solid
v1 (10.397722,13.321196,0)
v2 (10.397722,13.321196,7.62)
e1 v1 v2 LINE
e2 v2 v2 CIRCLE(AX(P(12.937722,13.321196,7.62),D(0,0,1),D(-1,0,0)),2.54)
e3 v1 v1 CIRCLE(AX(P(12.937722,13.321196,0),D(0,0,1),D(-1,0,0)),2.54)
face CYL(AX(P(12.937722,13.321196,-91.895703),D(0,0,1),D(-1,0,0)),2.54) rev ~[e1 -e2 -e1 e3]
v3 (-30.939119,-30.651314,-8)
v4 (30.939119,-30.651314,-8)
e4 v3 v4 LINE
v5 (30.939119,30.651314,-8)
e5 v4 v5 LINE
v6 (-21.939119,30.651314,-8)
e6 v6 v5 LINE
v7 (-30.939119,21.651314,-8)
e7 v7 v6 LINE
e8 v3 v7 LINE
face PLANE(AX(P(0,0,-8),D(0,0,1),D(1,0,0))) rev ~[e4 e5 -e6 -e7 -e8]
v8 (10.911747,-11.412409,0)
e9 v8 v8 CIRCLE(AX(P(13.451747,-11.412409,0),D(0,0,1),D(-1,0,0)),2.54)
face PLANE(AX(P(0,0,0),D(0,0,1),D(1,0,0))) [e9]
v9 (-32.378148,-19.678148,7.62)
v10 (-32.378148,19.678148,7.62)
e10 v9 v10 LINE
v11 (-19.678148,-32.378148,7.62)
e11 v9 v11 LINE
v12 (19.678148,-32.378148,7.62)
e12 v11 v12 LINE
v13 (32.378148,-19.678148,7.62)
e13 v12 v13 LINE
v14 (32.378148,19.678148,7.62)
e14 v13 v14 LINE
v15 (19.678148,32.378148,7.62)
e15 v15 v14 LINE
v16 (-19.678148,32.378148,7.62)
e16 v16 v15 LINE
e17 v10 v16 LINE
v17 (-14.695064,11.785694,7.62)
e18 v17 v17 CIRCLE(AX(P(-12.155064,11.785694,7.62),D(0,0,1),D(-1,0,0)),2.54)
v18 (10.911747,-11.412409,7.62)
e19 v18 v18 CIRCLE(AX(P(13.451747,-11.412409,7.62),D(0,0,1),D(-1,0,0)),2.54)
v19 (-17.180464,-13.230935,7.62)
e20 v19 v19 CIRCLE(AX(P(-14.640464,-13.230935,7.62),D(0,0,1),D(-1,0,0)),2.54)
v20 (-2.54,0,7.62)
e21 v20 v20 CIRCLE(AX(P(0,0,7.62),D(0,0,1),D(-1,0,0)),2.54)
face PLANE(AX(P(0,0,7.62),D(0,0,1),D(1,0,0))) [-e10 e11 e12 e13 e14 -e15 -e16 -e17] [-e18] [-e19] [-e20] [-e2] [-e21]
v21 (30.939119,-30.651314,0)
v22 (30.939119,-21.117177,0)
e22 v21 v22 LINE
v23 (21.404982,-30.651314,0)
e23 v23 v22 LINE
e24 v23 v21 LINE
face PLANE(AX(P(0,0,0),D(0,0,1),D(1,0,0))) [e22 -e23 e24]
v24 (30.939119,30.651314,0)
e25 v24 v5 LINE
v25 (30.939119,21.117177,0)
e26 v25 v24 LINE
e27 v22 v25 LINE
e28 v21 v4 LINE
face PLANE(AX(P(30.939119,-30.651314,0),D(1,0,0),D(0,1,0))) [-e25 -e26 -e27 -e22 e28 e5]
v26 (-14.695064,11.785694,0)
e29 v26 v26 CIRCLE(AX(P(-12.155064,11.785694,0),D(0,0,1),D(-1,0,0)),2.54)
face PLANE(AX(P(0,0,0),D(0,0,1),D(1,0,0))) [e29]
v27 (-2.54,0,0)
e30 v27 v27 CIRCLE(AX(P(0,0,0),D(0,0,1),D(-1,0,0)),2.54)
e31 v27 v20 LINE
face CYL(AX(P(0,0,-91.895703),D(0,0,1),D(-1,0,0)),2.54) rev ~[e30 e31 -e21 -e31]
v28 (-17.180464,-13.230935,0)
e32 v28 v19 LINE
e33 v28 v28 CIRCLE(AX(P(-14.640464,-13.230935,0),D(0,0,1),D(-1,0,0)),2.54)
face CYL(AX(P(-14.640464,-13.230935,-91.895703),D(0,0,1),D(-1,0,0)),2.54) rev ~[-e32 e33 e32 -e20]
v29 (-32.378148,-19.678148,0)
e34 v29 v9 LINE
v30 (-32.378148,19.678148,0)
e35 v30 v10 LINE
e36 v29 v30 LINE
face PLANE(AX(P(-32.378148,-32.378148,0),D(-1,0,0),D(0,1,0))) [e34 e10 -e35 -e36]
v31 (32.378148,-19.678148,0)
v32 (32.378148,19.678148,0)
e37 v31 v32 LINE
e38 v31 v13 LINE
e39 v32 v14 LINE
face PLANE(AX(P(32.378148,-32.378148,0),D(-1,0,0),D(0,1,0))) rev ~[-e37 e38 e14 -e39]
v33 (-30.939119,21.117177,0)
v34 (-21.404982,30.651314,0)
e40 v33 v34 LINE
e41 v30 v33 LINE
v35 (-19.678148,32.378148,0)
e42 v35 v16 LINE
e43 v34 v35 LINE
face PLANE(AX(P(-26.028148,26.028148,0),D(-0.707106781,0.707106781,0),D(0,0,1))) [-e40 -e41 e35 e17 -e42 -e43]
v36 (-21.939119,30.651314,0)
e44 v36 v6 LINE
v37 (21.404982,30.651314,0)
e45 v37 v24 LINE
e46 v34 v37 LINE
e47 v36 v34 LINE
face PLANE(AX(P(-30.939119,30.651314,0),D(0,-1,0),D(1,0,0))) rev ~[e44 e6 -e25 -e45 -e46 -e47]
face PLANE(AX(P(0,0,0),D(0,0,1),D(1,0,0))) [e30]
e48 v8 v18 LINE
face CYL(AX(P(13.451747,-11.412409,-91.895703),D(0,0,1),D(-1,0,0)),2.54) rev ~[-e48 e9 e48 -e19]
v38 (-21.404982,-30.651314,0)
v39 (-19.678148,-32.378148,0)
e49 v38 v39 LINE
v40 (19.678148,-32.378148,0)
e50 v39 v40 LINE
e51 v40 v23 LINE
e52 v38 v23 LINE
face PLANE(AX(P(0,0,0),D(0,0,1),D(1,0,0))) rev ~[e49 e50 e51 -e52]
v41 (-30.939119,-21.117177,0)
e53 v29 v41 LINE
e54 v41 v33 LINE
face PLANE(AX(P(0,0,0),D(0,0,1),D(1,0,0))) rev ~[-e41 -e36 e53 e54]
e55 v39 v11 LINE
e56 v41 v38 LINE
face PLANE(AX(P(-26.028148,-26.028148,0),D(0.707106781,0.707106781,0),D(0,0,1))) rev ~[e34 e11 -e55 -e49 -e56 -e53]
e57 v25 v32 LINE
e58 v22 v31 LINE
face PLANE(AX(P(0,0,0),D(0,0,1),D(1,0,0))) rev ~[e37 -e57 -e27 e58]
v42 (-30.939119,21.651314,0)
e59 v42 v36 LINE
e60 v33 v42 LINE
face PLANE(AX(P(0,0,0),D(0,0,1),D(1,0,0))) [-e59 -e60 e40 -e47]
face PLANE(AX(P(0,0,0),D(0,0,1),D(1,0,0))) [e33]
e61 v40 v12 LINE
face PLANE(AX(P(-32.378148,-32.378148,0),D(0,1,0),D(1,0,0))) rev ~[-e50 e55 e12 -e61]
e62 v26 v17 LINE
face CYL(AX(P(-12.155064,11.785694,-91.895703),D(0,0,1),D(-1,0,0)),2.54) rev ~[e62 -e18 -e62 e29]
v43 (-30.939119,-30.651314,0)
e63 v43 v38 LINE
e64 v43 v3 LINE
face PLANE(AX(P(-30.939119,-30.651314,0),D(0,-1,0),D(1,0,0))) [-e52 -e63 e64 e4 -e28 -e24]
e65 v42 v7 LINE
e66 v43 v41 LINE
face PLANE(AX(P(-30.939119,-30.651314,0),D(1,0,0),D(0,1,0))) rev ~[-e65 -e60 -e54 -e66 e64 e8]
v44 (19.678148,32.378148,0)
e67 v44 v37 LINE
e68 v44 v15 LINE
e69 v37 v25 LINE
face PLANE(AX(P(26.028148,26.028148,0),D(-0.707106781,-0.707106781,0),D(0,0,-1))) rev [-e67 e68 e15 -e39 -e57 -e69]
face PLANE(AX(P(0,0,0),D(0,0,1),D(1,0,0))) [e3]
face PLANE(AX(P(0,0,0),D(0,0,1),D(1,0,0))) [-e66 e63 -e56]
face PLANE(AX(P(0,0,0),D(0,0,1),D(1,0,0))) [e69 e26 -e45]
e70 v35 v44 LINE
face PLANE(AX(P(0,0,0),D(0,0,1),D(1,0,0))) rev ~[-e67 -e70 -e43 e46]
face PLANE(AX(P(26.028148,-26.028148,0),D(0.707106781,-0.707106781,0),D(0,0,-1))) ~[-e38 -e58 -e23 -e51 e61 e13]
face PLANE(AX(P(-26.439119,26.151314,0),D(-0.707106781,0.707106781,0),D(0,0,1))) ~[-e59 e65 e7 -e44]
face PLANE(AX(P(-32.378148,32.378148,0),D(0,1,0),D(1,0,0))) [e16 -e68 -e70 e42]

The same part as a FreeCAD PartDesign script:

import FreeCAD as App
import Part
import Sketcher
Q = App.Units.Quantity


def edges_at(feature, points):
    """Names of the edges that pass closest to the given points."""
    edges = feature.Shape.Edges
    near = lambda p: min(range(len(edges)), key=lambda i: edges[i].distToShape(Part.Vertex(*p))[0])
    return sorted({f"Edge{near(p) + 1}" for p in points})


def add_polygon(sketch, points):
    """Adds a closed chain of lines whose ends are joined by coincident constraints."""
    first, n = sketch.GeometryCount, len(points)
    for a, b in zip(points, points[1:] + points[:1]):
        sketch.addGeometry(Part.LineSegment(App.Vector(*a, 0), App.Vector(*b, 0)), False)
    for i in range(n):
        sketch.addConstraint(Sketcher.Constraint("Coincident", first + i, 2, first + (i + 1) % n, 1))

doc = App.newDocument("Part")
body = doc.addObject("PartDesign::Body", "Body")

# Sketch on XY plane
sketch1 = doc.addObject("Sketcher::SketchObject", "Sketch")
body.addObject(sketch1)
sketch1.AttachmentSupport = (doc.XY_Plane, [""])
sketch1.MapMode = "FlatFace"
add_polygon(sketch1, [(-32, 32), (-32, -32), (32, -32), (32, 32)])  # lines 0-3
sketch1.addConstraint([
    Sketcher.Constraint("Vertical", 0),
    Sketcher.Constraint("Horizontal", 1),
    Sketcher.Constraint("Vertical", 2),
    Sketcher.Constraint("Horizontal", 3),
    Sketcher.Constraint("Symmetric", 0, 2, 2, 2, -1, 1),
    Sketcher.Constraint("Equal", 3, 0),
    Sketcher.Constraint("DistanceX", 1, 1, 1, 2, Q("64.756296 mm")),
])
pad1 = doc.addObject("PartDesign::Pad", "Pad")
body.addObject(pad1)
pad1.Profile = sketch1
pad1.Length = Q("0.3 in")
doc.recompute()

chamfer = doc.addObject("PartDesign::Chamfer", "Chamfer")
body.addObject(chamfer)
chamfer.Base = (pad1, edges_at(pad1, [(32.378, -32.378, 3.81)]))
chamfer.Size = Q("0.5 in")
doc.recompute()

chamfer2 = doc.addObject("PartDesign::Chamfer", "Chamfer001")
body.addObject(chamfer2)
chamfer2.Base = (chamfer, edges_at(chamfer, [(-32.378, 32.378, 3.81)]))
chamfer2.Size = Q("0.5 in")
doc.recompute()

chamfer3 = doc.addObject("PartDesign::Chamfer", "Chamfer002")
body.addObject(chamfer3)
chamfer3.Base = (chamfer2, edges_at(chamfer2, [(-32.378, -32.378, 3.81)]))
chamfer3.Size = Q("0.5 in")
doc.recompute()

chamfer4 = doc.addObject("PartDesign::Chamfer", "Chamfer003")
body.addObject(chamfer4)
chamfer4.Base = (chamfer3, edges_at(chamfer3, [(32.378, 32.378, 3.81)]))
chamfer4.Size = Q("0.5 in")

# Sketch on XY plane
sketch2 = doc.addObject("Sketcher::SketchObject", "Sketch001")
body.addObject(sketch2)
sketch2.AttachmentSupport = (doc.XY_Plane, [""])
sketch2.MapMode = "FlatFace"
sketch2.addGeometry(Part.Circle(App.Vector(13.5, -11.4, 0), App.Vector(0, 0, 1), 2.5), False)
sketch2.addConstraint([
    Sketcher.Constraint("Diameter", 0, Q("0.2 in")),
    Sketcher.Constraint("DistanceY", 0, 3, -1, 1, Q("11.412409 mm")),
    Sketcher.Constraint("DistanceX", -1, 1, 0, 3, Q("13.451747 mm")),
])
doc.recompute()
hole = doc.addObject("PartDesign::Hole", "Hole")
body.addObject(hole)
hole.Profile = sketch2
hole.ThreadType = "None"
hole.Diameter = Q("0.2 in")
hole.DepthType = "ThroughAll"
hole.Reversed = True

# Sketch on XY plane
sketch3 = doc.addObject("Sketcher::SketchObject", "Sketch002")
body.addObject(sketch3)
sketch3.AttachmentSupport = (doc.XY_Plane, [""])
sketch3.MapMode = "FlatFace"
sketch3.addGeometry(Part.Circle(App.Vector(12.9, 13.3, 0), App.Vector(0, 0, 1), 2.5), False)
sketch3.addConstraint([
    Sketcher.Constraint("Diameter", 0, Q("0.2 in")),
    Sketcher.Constraint("DistanceX", -1, 1, 0, 3, Q("12.937722 mm")),
    Sketcher.Constraint("DistanceY", -1, 1, 0, 3, Q("13.321196 mm")),
])
doc.recompute()
hole2 = doc.addObject("PartDesign::Hole", "Hole001")
body.addObject(hole2)
hole2.Profile = sketch3
hole2.ThreadType = "None"
hole2.Diameter = Q("0.2 in")
hole2.DepthType = "ThroughAll"
hole2.Reversed = True

# Sketch on XY plane
sketch4 = doc.addObject("Sketcher::SketchObject", "Sketch003")
body.addObject(sketch4)
sketch4.AttachmentSupport = (doc.XY_Plane, [""])
sketch4.MapMode = "FlatFace"
sketch4.addGeometry(Part.Circle(App.Vector(0, 0, 0), App.Vector(0, 0, 1), 2.5), False)
sketch4.addConstraint([
    Sketcher.Constraint("Coincident", 0, 3, -1, 1),
    Sketcher.Constraint("Diameter", 0, Q("0.2 in")),
])
doc.recompute()
hole3 = doc.addObject("PartDesign::Hole", "Hole002")
body.addObject(hole3)
hole3.Profile = sketch4
hole3.ThreadType = "None"
hole3.Diameter = Q("0.2 in")
hole3.DepthType = "ThroughAll"
hole3.Reversed = True

# Sketch on XY plane
sketch5 = doc.addObject("Sketcher::SketchObject", "Sketch004")
body.addObject(sketch5)
sketch5.AttachmentSupport = (doc.XY_Plane, [""])
sketch5.MapMode = "FlatFace"
sketch5.addGeometry([
    Part.Circle(App.Vector(-12.2, 11.8, 0), App.Vector(0, 0, 1), 2.5),
    Part.Circle(App.Vector(-14.6, -13.2, 0), App.Vector(0, 0, 1), 2.5),
], False)
sketch5.addConstraint([
    Sketcher.Constraint("Equal", 0, 1),
    Sketcher.Constraint("Diameter", 0, Q("0.2 in")),
    Sketcher.Constraint("DistanceX", 1, 3, 0, 3, Q("2.4854 mm")),
    Sketcher.Constraint("DistanceY", 1, 3, 0, 3, Q("25.016629 mm")),
    Sketcher.Constraint("DistanceX", 0, 3, -1, 1, Q("12.155064 mm")),
    Sketcher.Constraint("DistanceY", -1, 1, 0, 3, Q("11.785694 mm")),
])
doc.recompute()
hole4 = doc.addObject("PartDesign::Hole", "Hole003")
body.addObject(hole4)
hole4.Profile = sketch5
hole4.ThreadType = "None"
hole4.Diameter = Q("0.2 in")
hole4.DepthType = "ThroughAll"
hole4.Reversed = True

# Sketch on XY plane
sketch6 = doc.addObject("Sketcher::SketchObject", "Sketch005")
body.addObject(sketch6)
sketch6.AttachmentSupport = (doc.XY_Plane, [""])
sketch6.MapMode = "FlatFace"
add_polygon(sketch6, [(-31, 31), (-31, -31), (31, -31), (31, 31)])  # lines 0-3
sketch6.addConstraint([
    Sketcher.Constraint("Vertical", 0),
    Sketcher.Constraint("Horizontal", 1),
    Sketcher.Constraint("Vertical", 2),
    Sketcher.Constraint("Horizontal", 3),
    Sketcher.Constraint("Symmetric", 0, 2, 2, 2, -1, 1),
    Sketcher.Constraint("DistanceX", 1, 1, 1, 2, Q("61.878238 mm")),
    Sketcher.Constraint("DistanceY", 0, 2, 0, 1, Q("61.302628 mm")),
])
pad2 = doc.addObject("PartDesign::Pad", "Pad001")
body.addObject(pad2)
pad2.Profile = sketch6
pad2.Length = 8
pad2.Reversed = True
doc.recompute()

chamfer5 = doc.addObject("PartDesign::Chamfer", "Chamfer004")
body.addObject(chamfer5)
chamfer5.Base = (pad2, edges_at(pad2, [(-30.939, 30.651, -4)]))
chamfer5.Size = 9

doc.recompute()
